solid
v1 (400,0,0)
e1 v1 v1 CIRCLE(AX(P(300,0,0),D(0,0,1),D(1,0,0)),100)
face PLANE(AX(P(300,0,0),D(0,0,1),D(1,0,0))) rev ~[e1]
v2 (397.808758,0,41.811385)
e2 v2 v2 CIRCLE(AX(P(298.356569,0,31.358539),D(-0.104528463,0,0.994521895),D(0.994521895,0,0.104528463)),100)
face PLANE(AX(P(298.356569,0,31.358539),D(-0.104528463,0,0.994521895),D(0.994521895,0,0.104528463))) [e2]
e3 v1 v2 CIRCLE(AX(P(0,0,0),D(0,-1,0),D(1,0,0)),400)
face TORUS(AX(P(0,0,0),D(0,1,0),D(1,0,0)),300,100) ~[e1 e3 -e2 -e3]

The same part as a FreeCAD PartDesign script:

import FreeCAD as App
import Part
import Sketcher

V = App.Vector
Q = App.Units.Quantity

doc = App.newDocument("Part")
body = doc.addObject("PartDesign::Body", "Body")

# Sketch on XY plane
sketch1 = body.newObject("Sketcher::SketchObject", "Sketch")
sketch1.AttachmentSupport = (doc.getObject("XY_Plane"), [""])
sketch1.MapMode = "FlatFace"
sketch1.addGeometry(Part.Circle(V(300, 0, 0), V(0, 0, 1), 100), False)
sketch1.addConstraint([
    Sketcher.Constraint("PointOnObject", 0, 3, -1),
    Sketcher.Constraint("Diameter", 0, Q("200 mm")),
    Sketcher.Constraint("DistanceX", -1, 1, 0, 3, Q("300 mm")),
])
revolution = body.newObject("PartDesign::Revolution", "Revolution")
revolution.Profile = sketch1
revolution.ReferenceAxis = (sketch1, ["V_Axis"])
revolution.Angle = 6
revolution.Reversed = True

doc.recompute()
